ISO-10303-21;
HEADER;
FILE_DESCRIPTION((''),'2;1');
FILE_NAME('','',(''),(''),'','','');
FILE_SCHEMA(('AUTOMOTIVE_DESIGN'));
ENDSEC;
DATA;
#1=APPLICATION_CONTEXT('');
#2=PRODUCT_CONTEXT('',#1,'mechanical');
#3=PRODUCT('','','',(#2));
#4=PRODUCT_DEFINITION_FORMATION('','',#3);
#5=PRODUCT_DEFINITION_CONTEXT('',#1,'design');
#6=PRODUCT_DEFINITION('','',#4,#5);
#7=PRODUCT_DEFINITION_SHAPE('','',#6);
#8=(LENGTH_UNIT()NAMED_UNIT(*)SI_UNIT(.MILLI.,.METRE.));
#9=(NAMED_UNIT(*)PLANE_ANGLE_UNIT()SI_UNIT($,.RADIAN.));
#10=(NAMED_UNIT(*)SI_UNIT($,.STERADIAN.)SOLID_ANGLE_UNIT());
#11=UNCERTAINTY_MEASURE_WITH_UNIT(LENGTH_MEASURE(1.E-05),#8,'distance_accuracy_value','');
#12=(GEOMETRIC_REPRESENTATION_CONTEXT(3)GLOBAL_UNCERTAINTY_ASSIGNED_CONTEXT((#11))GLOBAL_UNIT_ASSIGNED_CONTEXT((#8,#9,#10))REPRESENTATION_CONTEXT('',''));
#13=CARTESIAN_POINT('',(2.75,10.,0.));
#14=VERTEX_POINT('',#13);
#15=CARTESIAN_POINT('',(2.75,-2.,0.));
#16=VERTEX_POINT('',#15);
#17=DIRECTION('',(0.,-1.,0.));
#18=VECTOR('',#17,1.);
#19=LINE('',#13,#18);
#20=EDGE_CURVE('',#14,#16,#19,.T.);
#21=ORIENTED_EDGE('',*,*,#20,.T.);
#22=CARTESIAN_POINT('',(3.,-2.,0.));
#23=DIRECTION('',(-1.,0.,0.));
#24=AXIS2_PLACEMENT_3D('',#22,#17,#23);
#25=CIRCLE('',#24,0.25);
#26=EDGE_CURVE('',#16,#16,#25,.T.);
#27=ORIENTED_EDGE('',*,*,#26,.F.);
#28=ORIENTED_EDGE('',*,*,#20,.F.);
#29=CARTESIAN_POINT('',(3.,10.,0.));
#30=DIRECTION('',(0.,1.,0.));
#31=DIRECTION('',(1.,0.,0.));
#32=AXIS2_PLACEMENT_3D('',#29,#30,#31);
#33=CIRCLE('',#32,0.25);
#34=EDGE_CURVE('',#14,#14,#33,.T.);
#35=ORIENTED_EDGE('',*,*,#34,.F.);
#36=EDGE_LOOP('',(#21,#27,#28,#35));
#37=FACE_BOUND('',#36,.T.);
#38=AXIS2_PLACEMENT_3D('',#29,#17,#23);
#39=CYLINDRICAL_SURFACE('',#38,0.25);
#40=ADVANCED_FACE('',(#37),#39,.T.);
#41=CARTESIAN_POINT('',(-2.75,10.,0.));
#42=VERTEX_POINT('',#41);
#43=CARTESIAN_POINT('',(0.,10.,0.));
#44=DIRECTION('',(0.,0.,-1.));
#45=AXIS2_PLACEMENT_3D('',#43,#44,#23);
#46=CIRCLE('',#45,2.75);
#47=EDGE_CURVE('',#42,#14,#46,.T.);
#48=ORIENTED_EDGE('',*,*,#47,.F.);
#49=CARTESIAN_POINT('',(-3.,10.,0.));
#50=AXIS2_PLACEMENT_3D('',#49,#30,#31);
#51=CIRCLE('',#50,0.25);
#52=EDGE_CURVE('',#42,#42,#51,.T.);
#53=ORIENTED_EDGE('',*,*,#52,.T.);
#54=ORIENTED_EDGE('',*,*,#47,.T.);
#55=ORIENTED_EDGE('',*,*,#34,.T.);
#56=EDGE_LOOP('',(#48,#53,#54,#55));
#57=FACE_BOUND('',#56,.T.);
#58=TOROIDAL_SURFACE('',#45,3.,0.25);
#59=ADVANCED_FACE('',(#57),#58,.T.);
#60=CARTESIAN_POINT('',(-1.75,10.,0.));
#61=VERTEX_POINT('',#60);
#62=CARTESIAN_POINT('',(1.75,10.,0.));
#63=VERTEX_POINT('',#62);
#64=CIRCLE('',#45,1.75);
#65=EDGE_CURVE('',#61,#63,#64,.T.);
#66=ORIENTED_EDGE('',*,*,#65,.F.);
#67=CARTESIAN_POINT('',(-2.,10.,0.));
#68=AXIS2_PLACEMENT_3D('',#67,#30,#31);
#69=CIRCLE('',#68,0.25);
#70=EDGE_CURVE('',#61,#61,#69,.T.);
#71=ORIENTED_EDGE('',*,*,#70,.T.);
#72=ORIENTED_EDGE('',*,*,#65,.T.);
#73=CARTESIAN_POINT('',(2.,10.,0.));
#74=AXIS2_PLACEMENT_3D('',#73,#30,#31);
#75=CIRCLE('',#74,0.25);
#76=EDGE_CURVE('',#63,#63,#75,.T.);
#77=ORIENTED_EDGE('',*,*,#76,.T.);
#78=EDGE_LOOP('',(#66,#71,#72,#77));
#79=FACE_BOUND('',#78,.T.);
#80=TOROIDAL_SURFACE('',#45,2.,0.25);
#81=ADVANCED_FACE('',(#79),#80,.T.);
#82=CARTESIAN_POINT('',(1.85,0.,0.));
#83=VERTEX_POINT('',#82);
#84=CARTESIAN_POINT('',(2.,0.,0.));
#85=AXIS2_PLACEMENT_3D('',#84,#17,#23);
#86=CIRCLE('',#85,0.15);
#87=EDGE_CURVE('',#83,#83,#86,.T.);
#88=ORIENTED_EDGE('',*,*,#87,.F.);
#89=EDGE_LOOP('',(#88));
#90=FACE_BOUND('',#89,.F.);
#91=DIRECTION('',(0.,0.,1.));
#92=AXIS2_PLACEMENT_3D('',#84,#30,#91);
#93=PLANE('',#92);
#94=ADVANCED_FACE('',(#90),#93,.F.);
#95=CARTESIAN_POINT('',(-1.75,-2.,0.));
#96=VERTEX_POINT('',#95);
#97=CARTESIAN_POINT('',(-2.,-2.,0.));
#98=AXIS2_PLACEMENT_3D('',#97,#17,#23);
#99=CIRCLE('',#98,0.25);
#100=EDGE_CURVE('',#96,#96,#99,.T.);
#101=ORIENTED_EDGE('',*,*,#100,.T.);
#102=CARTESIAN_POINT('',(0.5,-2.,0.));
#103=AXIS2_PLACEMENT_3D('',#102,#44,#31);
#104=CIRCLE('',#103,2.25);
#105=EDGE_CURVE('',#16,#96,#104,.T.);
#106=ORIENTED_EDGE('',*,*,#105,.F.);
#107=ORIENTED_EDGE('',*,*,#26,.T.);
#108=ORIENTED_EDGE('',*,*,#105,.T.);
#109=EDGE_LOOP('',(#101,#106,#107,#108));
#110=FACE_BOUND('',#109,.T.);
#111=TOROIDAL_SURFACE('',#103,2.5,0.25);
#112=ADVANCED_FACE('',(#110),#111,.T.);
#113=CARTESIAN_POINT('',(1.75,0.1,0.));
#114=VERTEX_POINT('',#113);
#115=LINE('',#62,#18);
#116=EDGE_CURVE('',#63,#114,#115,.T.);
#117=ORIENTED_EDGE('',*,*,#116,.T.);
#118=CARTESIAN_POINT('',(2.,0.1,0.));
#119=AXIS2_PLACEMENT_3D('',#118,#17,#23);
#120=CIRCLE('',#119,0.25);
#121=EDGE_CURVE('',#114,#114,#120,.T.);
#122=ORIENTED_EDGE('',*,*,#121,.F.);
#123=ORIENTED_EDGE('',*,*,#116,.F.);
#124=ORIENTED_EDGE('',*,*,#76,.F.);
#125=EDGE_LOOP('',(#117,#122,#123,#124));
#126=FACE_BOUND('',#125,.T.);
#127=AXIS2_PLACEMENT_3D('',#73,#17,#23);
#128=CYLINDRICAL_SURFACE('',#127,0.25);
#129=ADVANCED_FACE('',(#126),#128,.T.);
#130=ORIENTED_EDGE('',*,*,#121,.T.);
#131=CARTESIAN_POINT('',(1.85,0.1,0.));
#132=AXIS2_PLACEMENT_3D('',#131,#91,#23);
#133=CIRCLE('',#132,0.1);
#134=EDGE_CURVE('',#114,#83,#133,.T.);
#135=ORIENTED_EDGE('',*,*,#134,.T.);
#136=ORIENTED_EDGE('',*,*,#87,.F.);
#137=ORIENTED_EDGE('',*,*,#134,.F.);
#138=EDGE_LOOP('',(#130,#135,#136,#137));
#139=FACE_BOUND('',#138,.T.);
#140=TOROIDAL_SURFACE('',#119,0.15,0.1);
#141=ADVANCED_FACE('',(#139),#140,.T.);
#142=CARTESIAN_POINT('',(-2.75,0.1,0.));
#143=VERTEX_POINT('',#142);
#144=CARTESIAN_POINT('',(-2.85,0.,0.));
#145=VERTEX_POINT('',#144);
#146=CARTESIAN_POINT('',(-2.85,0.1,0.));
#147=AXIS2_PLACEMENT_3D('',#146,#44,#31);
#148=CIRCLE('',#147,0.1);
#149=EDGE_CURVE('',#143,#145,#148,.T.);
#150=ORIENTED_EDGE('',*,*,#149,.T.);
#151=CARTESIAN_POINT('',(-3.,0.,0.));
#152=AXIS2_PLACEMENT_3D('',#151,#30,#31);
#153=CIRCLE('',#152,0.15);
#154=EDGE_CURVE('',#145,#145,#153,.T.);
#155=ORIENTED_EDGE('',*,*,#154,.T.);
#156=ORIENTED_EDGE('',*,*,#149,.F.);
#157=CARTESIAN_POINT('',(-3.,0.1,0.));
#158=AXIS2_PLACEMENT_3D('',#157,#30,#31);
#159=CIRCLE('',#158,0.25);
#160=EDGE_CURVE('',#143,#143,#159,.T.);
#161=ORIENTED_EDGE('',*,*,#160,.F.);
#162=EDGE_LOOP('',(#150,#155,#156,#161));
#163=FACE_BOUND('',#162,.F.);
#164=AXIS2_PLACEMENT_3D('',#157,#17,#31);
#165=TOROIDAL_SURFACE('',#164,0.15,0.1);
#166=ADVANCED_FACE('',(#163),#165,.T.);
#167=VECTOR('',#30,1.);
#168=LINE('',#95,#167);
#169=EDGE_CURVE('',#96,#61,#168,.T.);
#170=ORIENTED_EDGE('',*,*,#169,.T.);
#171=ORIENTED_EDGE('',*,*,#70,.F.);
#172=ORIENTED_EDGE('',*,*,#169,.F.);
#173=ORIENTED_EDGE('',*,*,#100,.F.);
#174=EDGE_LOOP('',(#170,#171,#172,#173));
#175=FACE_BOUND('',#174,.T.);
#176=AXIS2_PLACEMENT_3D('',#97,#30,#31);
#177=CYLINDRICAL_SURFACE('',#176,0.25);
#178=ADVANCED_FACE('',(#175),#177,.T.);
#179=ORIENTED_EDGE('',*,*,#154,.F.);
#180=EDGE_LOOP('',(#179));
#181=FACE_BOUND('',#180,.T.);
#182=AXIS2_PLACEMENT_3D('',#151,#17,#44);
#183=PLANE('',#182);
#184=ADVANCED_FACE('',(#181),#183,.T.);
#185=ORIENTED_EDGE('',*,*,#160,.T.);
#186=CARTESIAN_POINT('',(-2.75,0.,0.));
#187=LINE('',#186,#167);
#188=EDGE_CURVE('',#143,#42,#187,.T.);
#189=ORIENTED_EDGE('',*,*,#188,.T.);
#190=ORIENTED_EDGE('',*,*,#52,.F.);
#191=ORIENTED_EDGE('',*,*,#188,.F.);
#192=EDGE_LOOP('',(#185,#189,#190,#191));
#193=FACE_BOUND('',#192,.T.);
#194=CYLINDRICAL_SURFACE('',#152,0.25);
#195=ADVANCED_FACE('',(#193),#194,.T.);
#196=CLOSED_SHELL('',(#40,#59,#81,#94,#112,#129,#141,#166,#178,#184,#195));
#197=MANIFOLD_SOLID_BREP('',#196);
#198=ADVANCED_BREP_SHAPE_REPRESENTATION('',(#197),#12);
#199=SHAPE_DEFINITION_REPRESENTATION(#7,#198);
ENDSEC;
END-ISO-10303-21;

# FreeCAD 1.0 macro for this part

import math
import FreeCAD as App
import Part
import Sketcher
from FreeCAD import Vector
Q = App.Units.Quantity


def edges_at(feature, points):
    """Names of the edges that pass closest to the given points."""
    edges = feature.Shape.Edges
    near = lambda p: min(range(len(edges)), key=lambda i: edges[i].distToShape(Part.Vertex(*p))[0])
    return sorted({f"Edge{near(p) + 1}" for p in points})

doc = App.newDocument("Part")
params = doc.addObject("Spreadsheet::Sheet", "Params")
for row, (alias, value) in enumerate([
    ("sketch1_diameter", "0.5 mm"),
    ("sketch2_radius", "3 mm"),
    ("sketch2_radius2", "2 mm"),
    ("sketch2_height", "10 mm"),
    ("sketch2_height2", "12 mm"),
    ("fillet_radius", "0.1 mm"),
], start=1):
    params.set(f"A{row}", alias)
    params.set(f"B{row}", "=" + value)
    params.setAlias(f"B{row}", alias)

body = doc.addObject("PartDesign::Body", "Body")

sketch1 = body.newObject("Sketcher::SketchObject", "Sketch")
sketch1.AttachmentSupport = (doc.getObject("XZ_Plane"), [""])
sketch1.MapMode = "FlatFace"
sketch1.addGeometry(Part.Circle(Vector(-3, 0, 0), Vector(0, 0, 1), 0.25), False)
sketch1.addConstraint([
    Sketcher.Constraint("PointOnObject", 0, 3, -1),
    Sketcher.Constraint("Diameter", 0, Q("0.5 mm")),
    Sketcher.Constraint("DistanceX", 0, 3, -1, 1, Q("3 mm")),
])
sketch1.setExpression("Constraints[1]", "Params.sketch1_diameter")

sketch2 = body.newObject("Sketcher::SketchObject", "Sketch001")
sketch2.AttachmentSupport = (doc.getObject("XY_Plane"), [""])
sketch2.MapMode = "FlatFace"
sketch2.addGeometry([
    Part.LineSegment(Vector(-3, 0, 0), Vector(-3, 10, 0)),
    Part.ArcOfCircle(Part.Circle(Vector(0, 10, 0), Vector(0, 0, 1), 3), math.radians(0), math.radians(180)),
    Part.LineSegment(Vector(3, 10, 0), Vector(3, -2, 0)),
    Part.ArcOfCircle(Part.Circle(Vector(0.5, -2, 0), Vector(0, 0, 1), 2.5), math.radians(180), math.radians(360)),
    Part.LineSegment(Vector(-2, -2, 0), Vector(-2, 10, 0)),
    Part.ArcOfCircle(Part.Circle(Vector(0, 10, 0), Vector(0, 0, 1), 2), math.radians(0), math.radians(180)),
    Part.LineSegment(Vector(2, 10, 0), Vector(2, 0, 0)),
], False)
sketch2.addConstraint([
    Sketcher.Constraint("Tangent", 0, 2, 1, 2),
    Sketcher.Constraint("Tangent", 1, 1, 2, 1),
    Sketcher.Constraint("Tangent", 2, 2, 3, 2),
    Sketcher.Constraint("Tangent", 3, 1, 4, 1),
    Sketcher.Constraint("Tangent", 4, 2, 5, 2),
    Sketcher.Constraint("Tangent", 5, 1, 6, 1),
    Sketcher.Constraint("Vertical", 0),
    Sketcher.Constraint("Vertical", 2),
    Sketcher.Constraint("Vertical", 4),
    Sketcher.Constraint("Vertical", 6),
    Sketcher.Constraint("Coincident", 5, 3, 1, 3),
    Sketcher.Constraint("PointOnObject", 1, 3, -2),
    Sketcher.Constraint("PointOnObject", 0, 1, -1),
    Sketcher.Constraint("PointOnObject", 6, 2, -1),
    Sketcher.Constraint("Radius", 1, Q("3 mm")),
    Sketcher.Constraint("Radius", 5, Q("2 mm")),
    Sketcher.Constraint("DistanceY", 0, 1, 0, 2, Q("10 mm")),
    Sketcher.Constraint("DistanceY", 2, 2, 2, 1, Q("12 mm")),
])
sketch2.setExpression("Constraints[14]", "Params.sketch2_radius")
sketch2.setExpression("Constraints[15]", "Params.sketch2_radius2")
sketch2.setExpression("Constraints[16]", "Params.sketch2_height")
sketch2.setExpression("Constraints[17]", "Params.sketch2_height2")
doc.recompute()

additivepipe = body.newObject("PartDesign::AdditivePipe", "AdditivePipe")
additivepipe.Profile = sketch1
additivepipe.Spine = (sketch2, ["Edge1", "Edge2", "Edge3", "Edge4", "Edge5", "Edge6", "Edge7"])
doc.recompute()

fillet = body.newObject("PartDesign::Fillet", "Fillet")
fillet.Base = (additivepipe, edges_at(additivepipe, [(2.25, 0, 0), (-3.25, 0, 0)]))
fillet.setExpression("Radius", "Params.fillet_radius")

doc.recompute()
